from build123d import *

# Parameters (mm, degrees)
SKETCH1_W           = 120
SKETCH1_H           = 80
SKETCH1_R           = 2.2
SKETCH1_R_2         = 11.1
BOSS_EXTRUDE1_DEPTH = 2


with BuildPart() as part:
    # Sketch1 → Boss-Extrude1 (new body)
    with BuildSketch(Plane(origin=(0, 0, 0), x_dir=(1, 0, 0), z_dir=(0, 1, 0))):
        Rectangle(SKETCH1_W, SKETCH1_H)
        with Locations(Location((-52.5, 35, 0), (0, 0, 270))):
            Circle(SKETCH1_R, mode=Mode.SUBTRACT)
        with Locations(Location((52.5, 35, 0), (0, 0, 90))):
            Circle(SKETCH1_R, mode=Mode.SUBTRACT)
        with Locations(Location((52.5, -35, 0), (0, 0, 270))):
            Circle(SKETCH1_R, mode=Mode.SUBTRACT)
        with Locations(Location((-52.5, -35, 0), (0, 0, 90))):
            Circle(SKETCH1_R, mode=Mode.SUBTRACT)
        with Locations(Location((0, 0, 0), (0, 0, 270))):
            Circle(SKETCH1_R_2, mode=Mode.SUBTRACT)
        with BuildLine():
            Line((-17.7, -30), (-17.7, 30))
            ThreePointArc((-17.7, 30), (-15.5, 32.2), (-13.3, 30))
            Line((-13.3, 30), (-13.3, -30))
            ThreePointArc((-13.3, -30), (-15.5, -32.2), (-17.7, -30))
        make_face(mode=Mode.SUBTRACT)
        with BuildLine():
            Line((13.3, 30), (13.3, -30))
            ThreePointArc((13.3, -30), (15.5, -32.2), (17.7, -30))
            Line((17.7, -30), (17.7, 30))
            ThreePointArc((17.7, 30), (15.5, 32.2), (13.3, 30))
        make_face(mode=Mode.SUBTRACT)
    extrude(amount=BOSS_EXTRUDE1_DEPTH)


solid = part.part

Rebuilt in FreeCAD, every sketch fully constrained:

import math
import FreeCAD as App
import Part
import Sketcher

doc = App.newDocument("Part")
body = doc.addObject("PartDesign::Body", "Body")

sketch1 = body.newObject("Sketcher::SketchObject", "Sketch")
sketch1.AttachmentSupport = (doc.getObject("XZ_Plane"), [""])
sketch1.MapMode = "FlatFace"
sketch1.addGeometry([
    Part.LineSegment(App.Vector(-60, -40, 0), App.Vector(-60, 40, 0)),
    Part.LineSegment(App.Vector(-60, 40, 0), App.Vector(60, 40, 0)),
    Part.LineSegment(App.Vector(60, 40, 0), App.Vector(60, -40, 0)),
    Part.LineSegment(App.Vector(60, -40, 0), App.Vector(-60, -40, 0)),
    Part.Circle(App.Vector(-52.5, 35, 0), App.Vector(0, 0, 1), 2.2),
    Part.Circle(App.Vector(52.5, 35, 0), App.Vector(0, 0, 1), 2.2),
    Part.ArcOfCircle(Part.Circle(App.Vector(-15.5, 30, 0), App.Vector(0, 0, 1), 2.2), math.radians(0), math.radians(180)),
    Part.LineSegment(App.Vector(-17.7, 30, 0), App.Vector(-17.7, -30, 0)),
    Part.ArcOfCircle(Part.Circle(App.Vector(-15.5, -30, 0), App.Vector(0, 0, 1), 2.2), math.radians(180), math.radians(360)),
    Part.LineSegment(App.Vector(-13.3, -30, 0), App.Vector(-13.3, 30, 0)),
    Part.Circle(App.Vector(-52.5, -35, 0), App.Vector(0, 0, 1), 2.2),
    Part.Circle(App.Vector(0, 0, 0), App.Vector(0, 0, 1), 11.1),
    Part.LineSegment(App.Vector(13.3, 30, 0), App.Vector(13.3, -30, 0)),
    Part.ArcOfCircle(Part.Circle(App.Vector(15.5, -30, 0), App.Vector(0, 0, 1), 2.2), math.radians(180), math.radians(360)),
    Part.LineSegment(App.Vector(17.7, -30, 0), App.Vector(17.7, 30, 0)),
    Part.ArcOfCircle(Part.Circle(App.Vector(15.5, 30, 0), App.Vector(0, 0, 1), 2.2), math.radians(0), math.radians(180)),
    Part.Circle(App.Vector(52.5, -35, 0), App.Vector(0, 0, 1), 2.2),
], False)
sketch1.addConstraint([
    Sketcher.Constraint("Coincident", 0, 2, 1, 1),
    Sketcher.Constraint("Coincident", 1, 2, 2, 1),
    Sketcher.Constraint("Coincident", 2, 2, 3, 1),
    Sketcher.Constraint("Coincident", 3, 2, 0, 1),
    Sketcher.Constraint("Tangent", 6, 2, 7, 1),
    Sketcher.Constraint("Tangent", 7, 2, 8, 1),
    Sketcher.Constraint("Tangent", 8, 2, 9, 1),
    Sketcher.Constraint("Tangent", 9, 2, 6, 1),
    Sketcher.Constraint("Tangent", 12, 2, 13, 1),
    Sketcher.Constraint("Tangent", 13, 2, 14, 1),
    Sketcher.Constraint("Tangent", 14, 2, 15, 1),
    Sketcher.Constraint("Tangent", 15, 2, 12, 1),
    Sketcher.Constraint("Vertical", 0),
    Sketcher.Constraint("Horizontal", 1),
    Sketcher.Constraint("Vertical", 2),
    Sketcher.Constraint("Horizontal", 3),
    Sketcher.Constraint("Vertical", 7),
    Sketcher.Constraint("Vertical", 9),
    Sketcher.Constraint("Vertical", 12),
    Sketcher.Constraint("Vertical", 14),
    Sketcher.Constraint("Coincident", 11, 3, -1, 1),
    Sketcher.Constraint("Equal", 4, 5),
    Sketcher.Constraint("Equal", 5, 6),
    Sketcher.Constraint("Equal", 8, 10),
    Sketcher.Constraint("Equal", 10, 13),
    Sketcher.Constraint("Equal", 15, 16),
    Sketcher.Constraint("Symmetric", 5, 3, 10, 3, -1, 1),
    Sketcher.Constraint("Symmetric", 6, 3, 13, 3, -1, 1),
    Sketcher.Constraint("Symmetric", 4, 3, 16, 3, -1, 1),
    Sketcher.Constraint("Symmetric", 0, 2, 2, 2, -1, 1),
    Sketcher.Constraint("Symmetric", 4, 3, 5, 3, -2),
    Sketcher.Constraint("Horizontal", 8, 3, 13, 3),
    Sketcher.Constraint("Horizontal", 6, 3, 15, 3),
    Sketcher.Constraint("Diameter", 4, 4.4),
    Sketcher.Constraint("Diameter", 11, 22.2),
    Sketcher.Constraint("DistanceX", 1, 1, 1, 2, 120.0),
    Sketcher.Constraint("DistanceY", 0, 1, 0, 2, 80.0),
    Sketcher.Constraint("DistanceY", 7, 2, 7, 1, 60.0),
    Sketcher.Constraint("DistanceY", -1, 1, 4, 3, 35.0),
    Sketcher.Constraint("DistanceX", 4, 3, 5, 3, 105.0),
    Sketcher.Constraint("DistanceX", 4, 3, 6, 3, 37.0),
])
pad1 = body.newObject("PartDesign::Pad", "Pad")
pad1.Profile = sketch1
pad1.Length = 2
pad1.Reversed = True

doc.recompute()
